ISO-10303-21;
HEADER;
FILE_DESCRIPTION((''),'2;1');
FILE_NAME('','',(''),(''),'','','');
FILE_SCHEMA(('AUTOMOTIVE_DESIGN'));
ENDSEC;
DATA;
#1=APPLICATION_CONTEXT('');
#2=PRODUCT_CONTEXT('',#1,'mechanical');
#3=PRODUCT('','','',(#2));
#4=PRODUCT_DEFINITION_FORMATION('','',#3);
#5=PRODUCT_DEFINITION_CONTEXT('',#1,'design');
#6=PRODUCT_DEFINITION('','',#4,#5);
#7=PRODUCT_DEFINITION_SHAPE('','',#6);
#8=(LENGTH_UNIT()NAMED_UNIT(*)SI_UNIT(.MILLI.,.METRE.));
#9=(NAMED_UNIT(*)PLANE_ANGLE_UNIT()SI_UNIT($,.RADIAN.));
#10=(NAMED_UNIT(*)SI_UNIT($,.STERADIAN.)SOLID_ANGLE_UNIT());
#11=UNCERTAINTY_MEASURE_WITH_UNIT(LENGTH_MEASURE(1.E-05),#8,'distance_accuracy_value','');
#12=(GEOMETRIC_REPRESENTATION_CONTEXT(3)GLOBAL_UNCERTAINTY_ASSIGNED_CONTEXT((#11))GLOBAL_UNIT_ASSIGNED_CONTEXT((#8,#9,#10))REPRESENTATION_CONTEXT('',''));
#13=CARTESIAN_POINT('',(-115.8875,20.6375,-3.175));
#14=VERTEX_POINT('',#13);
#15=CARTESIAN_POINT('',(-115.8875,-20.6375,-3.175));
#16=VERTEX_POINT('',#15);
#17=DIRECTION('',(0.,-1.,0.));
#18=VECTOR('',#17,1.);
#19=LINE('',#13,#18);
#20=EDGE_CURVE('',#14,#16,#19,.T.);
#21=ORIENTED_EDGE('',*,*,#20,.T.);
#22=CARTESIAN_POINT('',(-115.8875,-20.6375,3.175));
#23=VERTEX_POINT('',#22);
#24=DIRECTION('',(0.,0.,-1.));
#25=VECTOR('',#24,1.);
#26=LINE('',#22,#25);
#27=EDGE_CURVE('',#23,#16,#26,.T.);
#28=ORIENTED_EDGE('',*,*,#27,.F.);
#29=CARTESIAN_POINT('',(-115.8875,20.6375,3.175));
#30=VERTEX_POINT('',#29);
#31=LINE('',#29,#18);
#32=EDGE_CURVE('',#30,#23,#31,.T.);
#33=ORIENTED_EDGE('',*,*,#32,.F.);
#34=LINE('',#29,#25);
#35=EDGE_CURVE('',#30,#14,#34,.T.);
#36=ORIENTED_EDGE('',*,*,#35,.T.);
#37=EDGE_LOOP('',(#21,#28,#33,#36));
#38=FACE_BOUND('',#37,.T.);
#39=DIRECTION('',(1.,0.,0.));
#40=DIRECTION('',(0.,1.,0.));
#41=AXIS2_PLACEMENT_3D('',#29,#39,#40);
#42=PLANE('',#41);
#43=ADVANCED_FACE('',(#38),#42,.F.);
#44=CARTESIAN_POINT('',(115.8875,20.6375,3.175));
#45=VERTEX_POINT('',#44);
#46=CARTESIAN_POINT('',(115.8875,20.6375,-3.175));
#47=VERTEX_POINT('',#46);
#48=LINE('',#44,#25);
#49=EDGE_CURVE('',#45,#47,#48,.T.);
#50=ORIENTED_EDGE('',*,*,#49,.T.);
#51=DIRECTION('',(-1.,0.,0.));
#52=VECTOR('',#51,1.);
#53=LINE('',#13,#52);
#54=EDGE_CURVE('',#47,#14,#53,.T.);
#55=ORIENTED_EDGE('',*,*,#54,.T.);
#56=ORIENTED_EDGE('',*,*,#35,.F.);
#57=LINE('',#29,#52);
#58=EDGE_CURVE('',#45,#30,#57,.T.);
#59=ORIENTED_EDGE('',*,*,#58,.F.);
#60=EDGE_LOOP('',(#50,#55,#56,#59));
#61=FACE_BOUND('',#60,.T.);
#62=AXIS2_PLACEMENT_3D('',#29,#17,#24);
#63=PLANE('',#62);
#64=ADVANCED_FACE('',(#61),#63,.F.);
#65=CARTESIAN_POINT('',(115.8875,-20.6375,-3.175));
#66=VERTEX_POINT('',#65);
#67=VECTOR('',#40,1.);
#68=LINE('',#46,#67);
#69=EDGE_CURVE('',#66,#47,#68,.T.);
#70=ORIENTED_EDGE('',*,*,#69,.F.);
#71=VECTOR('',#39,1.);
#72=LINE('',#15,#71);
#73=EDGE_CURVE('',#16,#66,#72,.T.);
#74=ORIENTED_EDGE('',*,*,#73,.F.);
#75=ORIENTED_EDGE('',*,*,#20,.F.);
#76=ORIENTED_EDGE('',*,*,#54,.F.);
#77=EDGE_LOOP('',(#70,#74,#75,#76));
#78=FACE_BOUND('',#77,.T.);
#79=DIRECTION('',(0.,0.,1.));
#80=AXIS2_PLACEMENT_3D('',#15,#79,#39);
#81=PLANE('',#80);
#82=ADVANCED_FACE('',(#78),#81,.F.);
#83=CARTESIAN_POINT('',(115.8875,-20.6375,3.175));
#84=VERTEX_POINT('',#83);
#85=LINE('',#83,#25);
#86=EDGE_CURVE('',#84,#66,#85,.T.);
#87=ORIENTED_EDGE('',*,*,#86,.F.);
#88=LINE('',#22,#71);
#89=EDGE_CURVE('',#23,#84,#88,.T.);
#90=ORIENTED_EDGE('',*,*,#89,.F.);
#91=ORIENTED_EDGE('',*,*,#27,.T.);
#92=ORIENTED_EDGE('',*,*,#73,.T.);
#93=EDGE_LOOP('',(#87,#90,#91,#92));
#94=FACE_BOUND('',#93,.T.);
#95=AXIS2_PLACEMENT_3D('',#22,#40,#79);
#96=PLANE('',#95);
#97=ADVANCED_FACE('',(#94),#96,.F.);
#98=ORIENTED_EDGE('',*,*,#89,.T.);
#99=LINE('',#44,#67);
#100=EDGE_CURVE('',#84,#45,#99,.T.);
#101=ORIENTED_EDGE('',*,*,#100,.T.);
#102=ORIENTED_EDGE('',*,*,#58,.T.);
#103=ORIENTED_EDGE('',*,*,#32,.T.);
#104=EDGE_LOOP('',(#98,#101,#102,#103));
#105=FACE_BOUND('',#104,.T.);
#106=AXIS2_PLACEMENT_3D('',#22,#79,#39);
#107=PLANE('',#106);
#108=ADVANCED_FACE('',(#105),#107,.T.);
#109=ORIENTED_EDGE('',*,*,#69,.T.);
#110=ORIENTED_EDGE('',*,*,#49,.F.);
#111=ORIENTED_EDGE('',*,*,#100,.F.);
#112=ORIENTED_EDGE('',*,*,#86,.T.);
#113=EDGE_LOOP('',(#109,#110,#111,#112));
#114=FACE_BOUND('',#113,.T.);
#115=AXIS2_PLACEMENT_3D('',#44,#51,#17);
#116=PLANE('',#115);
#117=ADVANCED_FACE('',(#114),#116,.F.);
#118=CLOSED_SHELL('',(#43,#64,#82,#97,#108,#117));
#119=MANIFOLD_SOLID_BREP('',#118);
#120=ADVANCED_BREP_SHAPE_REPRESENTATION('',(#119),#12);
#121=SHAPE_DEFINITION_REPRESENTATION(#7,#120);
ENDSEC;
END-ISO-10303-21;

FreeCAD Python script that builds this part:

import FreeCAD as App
import Part
import Sketcher
Q = App.Units.Quantity

doc = App.newDocument("Part")
params = doc.addObject("Spreadsheet::Sheet", "Params")
for row, (alias, value) in enumerate([
    ("sketch1_diameter", "0.5625 in"),
    ("sketch1_width", "9.125 in"),
    ("sketch1_height", "1.625 in"),
    ("pad1_length", "0.25 in"),
    ("sketch2_width", "9.125 in"),
    ("sketch2_height", "1.625 in"),
    ("pad2_length", "0.25 in"),
], start=1):
    params.set(f"A{row}", alias)
    params.set(f"B{row}", "=" + value)
    params.setAlias(f"B{row}", alias)

body = doc.addObject("PartDesign::Body", "Body")

sketch1 = body.newObject("Sketcher::SketchObject", "Sketch")
sketch1.AttachmentSupport = (doc.getObject("XY_Plane"), [""])
sketch1.MapMode = "FlatFace"
sketch1.addGeometry([
    Part.LineSegment(App.Vector(-116, 21, 0), App.Vector(-116, -21, 0)),
    Part.LineSegment(App.Vector(-116, -21, 0), App.Vector(116, -21, 0)),
    Part.LineSegment(App.Vector(116, -21, 0), App.Vector(116, 21, 0)),
    Part.LineSegment(App.Vector(116, 21, 0), App.Vector(-116, 21, 0)),
    Part.Circle(App.Vector(-95, 0, 0), App.Vector(0, 0, 1), 7),
    Part.Circle(App.Vector(-48, 0, 0), App.Vector(0, 0, 1), 7),
    Part.Circle(App.Vector(0, 0, 0), App.Vector(0, 0, 1), 7),
    Part.Circle(App.Vector(48, 0, 0), App.Vector(0, 0, 1), 7),
    Part.Circle(App.Vector(95, 0, 0), App.Vector(0, 0, 1), 7),
], False)
sketch1.addConstraint([
    Sketcher.Constraint("Coincident", 0, 2, 1, 1),
    Sketcher.Constraint("Coincident", 1, 2, 2, 1),
    Sketcher.Constraint("Coincident", 2, 2, 3, 1),
    Sketcher.Constraint("Coincident", 3, 2, 0, 1),
    Sketcher.Constraint("Vertical", 0),
    Sketcher.Constraint("Horizontal", 1),
    Sketcher.Constraint("Vertical", 2),
    Sketcher.Constraint("Horizontal", 3),
    Sketcher.Constraint("Coincident", 6, 3, -1, 1),
    Sketcher.Constraint("Equal", 4, 5),
    Sketcher.Constraint("Equal", 5, 6),
    Sketcher.Constraint("Equal", 6, 7),
    Sketcher.Constraint("Equal", 7, 8),
    Sketcher.Constraint("Symmetric", 5, 3, 7, 3, -1, 1),
    Sketcher.Constraint("Symmetric", 4, 3, 8, 3, -1, 1),
    Sketcher.Constraint("Symmetric", 0, 2, 2, 2, -1, 1),
    Sketcher.Constraint("PointOnObject", 4, 3, -1),
    Sketcher.Constraint("PointOnObject", 5, 3, -1),
    Sketcher.Constraint("Diameter", 4, Q("0.5625 in")),
    Sketcher.Constraint("DistanceX", 4, 3, 8, 3, Q("7.5 in")),
    Sketcher.Constraint("DistanceX", 1, 1, 1, 2, Q("9.125 in")),
    Sketcher.Constraint("DistanceY", 0, 2, 0, 1, Q("1.625 in")),
    Sketcher.Constraint("DistanceX", 5, 3, 7, 3, Q("3.75 in")),
])
sketch1.setExpression("Constraints[18]", "Params.sketch1_diameter")
sketch1.setExpression("Constraints[20]", "Params.sketch1_width")
sketch1.setExpression("Constraints[21]", "Params.sketch1_height")
pad1 = body.newObject("PartDesign::Pad", "Pad")
pad1.Profile = sketch1
pad1.setExpression("Length", "Params.pad1_length")
pad1.Midplane = True

sketch2 = body.newObject("Sketcher::SketchObject", "Sketch001")
sketch2.AttachmentSupport = (doc.getObject("XY_Plane"), [""])
sketch2.MapMode = "FlatFace"
sketch2.AttachmentOffset = App.Placement(App.Vector(0, 0, 0.125 * 25.4), App.Rotation())
sketch2.addGeometry([
    Part.LineSegment(App.Vector(-116, 21, 0), App.Vector(-116, -21, 0)),
    Part.LineSegment(App.Vector(-116, -21, 0), App.Vector(116, -21, 0)),
    Part.LineSegment(App.Vector(116, -21, 0), App.Vector(116, 21, 0)),
    Part.LineSegment(App.Vector(116, 21, 0), App.Vector(-116, 21, 0)),
], False)
sketch2.addConstraint([
    Sketcher.Constraint("Coincident", 0, 2, 1, 1),
    Sketcher.Constraint("Coincident", 1, 2, 2, 1),
    Sketcher.Constraint("Coincident", 2, 2, 3, 1),
    Sketcher.Constraint("Coincident", 3, 2, 0, 1),
    Sketcher.Constraint("Vertical", 0),
    Sketcher.Constraint("Horizontal", 1),
    Sketcher.Constraint("Vertical", 2),
    Sketcher.Constraint("Horizontal", 3),
    Sketcher.Constraint("Symmetric", 0, 2, 2, 2, -1, 1),
    Sketcher.Constraint("DistanceX", 1, 1, 1, 2, Q("9.125 in")),
    Sketcher.Constraint("DistanceY", 0, 2, 0, 1, Q("1.625 in")),
])
sketch2.setExpression("Constraints[9]", "Params.sketch2_width")
sketch2.setExpression("Constraints[10]", "Params.sketch2_height")
pad2 = body.newObject("PartDesign::Pad", "Pad001")
pad2.Profile = sketch2
pad2.setExpression("Length", "Params.pad2_length")
pad2.Reversed = True

doc.recompute()
